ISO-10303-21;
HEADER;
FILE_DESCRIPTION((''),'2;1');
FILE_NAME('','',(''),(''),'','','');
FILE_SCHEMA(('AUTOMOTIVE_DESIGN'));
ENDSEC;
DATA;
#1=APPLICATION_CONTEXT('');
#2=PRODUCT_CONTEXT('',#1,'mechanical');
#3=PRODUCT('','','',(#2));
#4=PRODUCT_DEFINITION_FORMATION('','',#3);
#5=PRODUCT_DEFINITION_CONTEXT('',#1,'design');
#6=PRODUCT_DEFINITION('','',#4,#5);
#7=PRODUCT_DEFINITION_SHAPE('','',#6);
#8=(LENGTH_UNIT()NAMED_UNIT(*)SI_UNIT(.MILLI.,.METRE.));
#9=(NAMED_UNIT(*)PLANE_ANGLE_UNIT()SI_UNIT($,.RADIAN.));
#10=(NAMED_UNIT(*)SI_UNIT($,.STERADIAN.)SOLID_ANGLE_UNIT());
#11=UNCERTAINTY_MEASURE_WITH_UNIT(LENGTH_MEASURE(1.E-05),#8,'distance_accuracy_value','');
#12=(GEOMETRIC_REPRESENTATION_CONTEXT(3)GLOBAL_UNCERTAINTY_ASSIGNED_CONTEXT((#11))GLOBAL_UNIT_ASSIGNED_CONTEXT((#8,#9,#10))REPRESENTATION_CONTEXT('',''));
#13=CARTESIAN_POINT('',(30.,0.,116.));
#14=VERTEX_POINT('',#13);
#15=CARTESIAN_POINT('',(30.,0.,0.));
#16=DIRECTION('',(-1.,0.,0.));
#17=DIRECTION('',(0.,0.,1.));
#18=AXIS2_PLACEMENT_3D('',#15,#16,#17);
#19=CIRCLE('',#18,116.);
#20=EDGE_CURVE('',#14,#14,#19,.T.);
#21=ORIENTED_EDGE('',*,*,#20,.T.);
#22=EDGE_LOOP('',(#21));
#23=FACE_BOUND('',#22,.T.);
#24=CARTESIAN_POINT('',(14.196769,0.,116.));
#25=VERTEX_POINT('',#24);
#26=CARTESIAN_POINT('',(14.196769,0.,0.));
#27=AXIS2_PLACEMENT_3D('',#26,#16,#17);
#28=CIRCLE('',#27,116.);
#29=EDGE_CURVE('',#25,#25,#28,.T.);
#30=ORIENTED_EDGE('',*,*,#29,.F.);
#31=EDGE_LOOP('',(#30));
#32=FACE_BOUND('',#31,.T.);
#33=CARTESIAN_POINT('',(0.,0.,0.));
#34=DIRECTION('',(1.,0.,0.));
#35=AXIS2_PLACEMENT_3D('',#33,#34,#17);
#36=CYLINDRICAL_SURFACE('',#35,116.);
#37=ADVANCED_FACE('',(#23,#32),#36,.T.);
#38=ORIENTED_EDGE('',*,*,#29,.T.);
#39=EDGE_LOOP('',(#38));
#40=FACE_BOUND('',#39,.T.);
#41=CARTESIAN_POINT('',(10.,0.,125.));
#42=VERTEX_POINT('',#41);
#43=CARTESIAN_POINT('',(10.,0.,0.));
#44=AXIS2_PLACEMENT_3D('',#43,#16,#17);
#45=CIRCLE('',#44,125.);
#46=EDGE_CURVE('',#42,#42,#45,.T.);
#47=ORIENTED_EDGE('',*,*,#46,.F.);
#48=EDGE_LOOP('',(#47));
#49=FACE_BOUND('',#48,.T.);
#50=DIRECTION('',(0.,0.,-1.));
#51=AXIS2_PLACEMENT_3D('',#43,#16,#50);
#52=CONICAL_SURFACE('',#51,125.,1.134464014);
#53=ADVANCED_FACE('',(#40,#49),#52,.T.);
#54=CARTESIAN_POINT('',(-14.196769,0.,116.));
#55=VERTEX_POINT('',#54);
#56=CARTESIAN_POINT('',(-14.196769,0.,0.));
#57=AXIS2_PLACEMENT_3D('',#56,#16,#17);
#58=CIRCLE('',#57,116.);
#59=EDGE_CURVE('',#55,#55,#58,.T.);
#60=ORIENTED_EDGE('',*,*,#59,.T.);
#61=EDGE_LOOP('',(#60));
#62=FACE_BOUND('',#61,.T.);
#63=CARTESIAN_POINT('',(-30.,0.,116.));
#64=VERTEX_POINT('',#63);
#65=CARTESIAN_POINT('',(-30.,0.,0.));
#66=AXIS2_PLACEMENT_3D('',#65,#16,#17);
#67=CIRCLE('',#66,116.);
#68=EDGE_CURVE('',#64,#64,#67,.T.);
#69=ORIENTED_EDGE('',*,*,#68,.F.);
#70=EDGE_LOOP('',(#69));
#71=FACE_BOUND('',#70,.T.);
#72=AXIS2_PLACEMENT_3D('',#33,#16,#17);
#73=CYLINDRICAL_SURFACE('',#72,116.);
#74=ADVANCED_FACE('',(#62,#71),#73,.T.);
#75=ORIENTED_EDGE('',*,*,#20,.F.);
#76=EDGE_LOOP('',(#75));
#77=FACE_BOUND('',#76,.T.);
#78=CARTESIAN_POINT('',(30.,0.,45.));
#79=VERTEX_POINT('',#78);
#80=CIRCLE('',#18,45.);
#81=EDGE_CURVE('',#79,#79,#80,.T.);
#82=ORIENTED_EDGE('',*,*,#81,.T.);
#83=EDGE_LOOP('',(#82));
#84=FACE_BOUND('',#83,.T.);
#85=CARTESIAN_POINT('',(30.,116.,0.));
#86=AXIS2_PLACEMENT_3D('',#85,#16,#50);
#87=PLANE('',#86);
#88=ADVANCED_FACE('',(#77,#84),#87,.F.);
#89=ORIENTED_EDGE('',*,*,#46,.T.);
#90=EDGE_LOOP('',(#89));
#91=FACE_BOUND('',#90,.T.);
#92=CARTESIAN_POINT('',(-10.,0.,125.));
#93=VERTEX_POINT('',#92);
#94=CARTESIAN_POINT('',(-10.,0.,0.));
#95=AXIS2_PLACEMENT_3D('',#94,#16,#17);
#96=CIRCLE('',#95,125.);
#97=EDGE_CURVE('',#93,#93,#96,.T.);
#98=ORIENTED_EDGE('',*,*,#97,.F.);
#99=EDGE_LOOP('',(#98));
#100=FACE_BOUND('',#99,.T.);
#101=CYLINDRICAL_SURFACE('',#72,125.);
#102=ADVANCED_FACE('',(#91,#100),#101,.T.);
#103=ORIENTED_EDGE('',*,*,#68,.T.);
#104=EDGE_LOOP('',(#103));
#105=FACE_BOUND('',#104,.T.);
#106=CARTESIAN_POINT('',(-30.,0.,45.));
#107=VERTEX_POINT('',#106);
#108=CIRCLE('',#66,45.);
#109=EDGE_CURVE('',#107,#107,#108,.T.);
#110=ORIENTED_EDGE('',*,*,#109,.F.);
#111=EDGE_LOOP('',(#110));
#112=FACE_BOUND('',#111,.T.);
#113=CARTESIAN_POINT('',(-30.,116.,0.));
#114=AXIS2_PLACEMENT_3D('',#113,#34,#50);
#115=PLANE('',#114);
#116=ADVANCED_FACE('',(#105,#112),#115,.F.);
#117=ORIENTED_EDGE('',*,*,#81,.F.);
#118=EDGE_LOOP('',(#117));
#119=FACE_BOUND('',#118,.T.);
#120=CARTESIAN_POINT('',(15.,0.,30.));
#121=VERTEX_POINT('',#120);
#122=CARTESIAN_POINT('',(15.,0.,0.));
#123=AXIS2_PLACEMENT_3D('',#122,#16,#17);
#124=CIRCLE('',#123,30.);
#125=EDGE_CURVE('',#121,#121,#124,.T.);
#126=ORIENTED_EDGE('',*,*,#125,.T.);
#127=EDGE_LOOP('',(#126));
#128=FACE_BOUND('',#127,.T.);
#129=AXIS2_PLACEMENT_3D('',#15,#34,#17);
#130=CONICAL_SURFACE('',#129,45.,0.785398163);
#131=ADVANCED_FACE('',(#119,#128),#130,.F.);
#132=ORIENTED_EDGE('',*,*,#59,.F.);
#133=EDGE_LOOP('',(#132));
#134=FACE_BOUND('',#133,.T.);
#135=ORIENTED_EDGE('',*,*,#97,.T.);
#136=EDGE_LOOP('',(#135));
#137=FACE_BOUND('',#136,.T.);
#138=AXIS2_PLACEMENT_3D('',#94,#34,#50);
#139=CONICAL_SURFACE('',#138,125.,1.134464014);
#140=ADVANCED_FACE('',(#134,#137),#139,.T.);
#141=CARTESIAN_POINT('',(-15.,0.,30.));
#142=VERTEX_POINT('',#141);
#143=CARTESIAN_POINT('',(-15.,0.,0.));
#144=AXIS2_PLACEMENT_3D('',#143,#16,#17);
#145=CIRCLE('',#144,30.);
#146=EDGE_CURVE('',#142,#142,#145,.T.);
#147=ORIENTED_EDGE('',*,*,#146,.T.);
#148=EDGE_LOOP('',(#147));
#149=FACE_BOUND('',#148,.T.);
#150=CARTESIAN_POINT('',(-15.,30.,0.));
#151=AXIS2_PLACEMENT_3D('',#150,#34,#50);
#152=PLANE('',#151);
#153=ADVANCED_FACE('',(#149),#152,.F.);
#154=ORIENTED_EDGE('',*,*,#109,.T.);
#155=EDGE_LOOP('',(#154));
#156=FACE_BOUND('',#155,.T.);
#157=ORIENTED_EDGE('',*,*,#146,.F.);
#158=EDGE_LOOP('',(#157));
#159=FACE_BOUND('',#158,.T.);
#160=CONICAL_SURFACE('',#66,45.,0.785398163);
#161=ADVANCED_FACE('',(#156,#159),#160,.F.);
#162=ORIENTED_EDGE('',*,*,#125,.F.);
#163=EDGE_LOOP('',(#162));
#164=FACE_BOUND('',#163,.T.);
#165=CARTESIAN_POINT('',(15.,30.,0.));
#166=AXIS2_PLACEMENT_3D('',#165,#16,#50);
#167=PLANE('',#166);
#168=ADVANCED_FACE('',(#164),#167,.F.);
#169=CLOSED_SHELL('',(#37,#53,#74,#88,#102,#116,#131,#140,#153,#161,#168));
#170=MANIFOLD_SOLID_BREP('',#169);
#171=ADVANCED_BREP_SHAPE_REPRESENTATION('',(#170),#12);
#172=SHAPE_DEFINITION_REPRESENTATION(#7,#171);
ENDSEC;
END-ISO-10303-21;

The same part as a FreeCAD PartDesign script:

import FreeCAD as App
import Part
import Sketcher

V = App.Vector
Q = App.Units.Quantity


def add_polygon(sketch, points):
    """Adds a closed chain of lines whose ends are joined by coincident constraints."""
    first, n = sketch.GeometryCount, len(points)
    for a, b in zip(points, points[1:] + points[:1]):
        sketch.addGeometry(Part.LineSegment(App.Vector(*a, 0), App.Vector(*b, 0)), False)
    for i in range(n):
        sketch.addConstraint(Sketcher.Constraint("Coincident", first + i, 2, first + (i + 1) % n, 1))

doc = App.newDocument("Part")
body = doc.addObject("PartDesign::Body", "Body")

# Sketch on XY plane
sketch1 = doc.addObject("Sketcher::SketchObject", "Sketch")
body.addObject(sketch1)
sketch1.AttachmentSupport = (doc.XY_Plane, [""])
sketch1.MapMode = "FlatFace"
add_polygon(sketch1, [(0, 0), (0, 125), (-10, 125), (-14, 116), (-30, 116), (-30, 45), (-15, 30), (-15, 0)])  # lines 0-7
sketch1.addConstraint([
    Sketcher.Constraint("Vertical", 0),
    Sketcher.Constraint("Horizontal", 1),
    Sketcher.Constraint("Horizontal", 3),
    Sketcher.Constraint("Vertical", 4),
    Sketcher.Constraint("Vertical", 6),
    Sketcher.Constraint("Horizontal", 7),
    Sketcher.Constraint("Coincident", 7, 2, -1, 1),
    Sketcher.Constraint("DistanceX", 1, 2, 1, 1, 10.0),
    Sketcher.Constraint("DistanceX", 7, 1, 7, 2, 15.0),
    Sketcher.Constraint("DistanceY", 0, 1, 0, 2, 125.0),
    Sketcher.Constraint("DistanceY", 4, 2, 4, 1, 71.0),
    Sketcher.Constraint("DistanceY", 6, 2, 6, 1, 30.0),
    Sketcher.Constraint("Angle", 2, Q("-115 deg")),
    Sketcher.Constraint("Angle", 5, Q("-45 deg")),
    Sketcher.Constraint("DistanceY", -1, 1, 2, 2, 116.0),
])
revolution = doc.addObject("PartDesign::Revolution", "Revolution")
body.addObject(revolution)
revolution.Profile = sketch1
revolution.ReferenceAxis = (sketch1, ["H_Axis"])
revolution.Angle = 360
body2 = doc.addObject("PartDesign::Body", "Body001")
doc.recompute()

body2.BaseFeature = body
doc.recompute()

mirroring = doc.addObject("Part::Mirroring", "Mirroring")
mirroring.Source = body
mirroring.Base = V(0, 0, 0)
mirroring.Normal = V(-1, 0, 0)
body3 = doc.addObject("PartDesign::Body", "Body002")
body3.BaseFeature = mirroring
boolean = doc.addObject("PartDesign::Boolean", "Boolean")
body2.addObject(boolean)
boolean.Type = "Fuse"
boolean.addObjects([body3])
doc.recompute()
mirroring.Visibility = False

doc.recompute()
